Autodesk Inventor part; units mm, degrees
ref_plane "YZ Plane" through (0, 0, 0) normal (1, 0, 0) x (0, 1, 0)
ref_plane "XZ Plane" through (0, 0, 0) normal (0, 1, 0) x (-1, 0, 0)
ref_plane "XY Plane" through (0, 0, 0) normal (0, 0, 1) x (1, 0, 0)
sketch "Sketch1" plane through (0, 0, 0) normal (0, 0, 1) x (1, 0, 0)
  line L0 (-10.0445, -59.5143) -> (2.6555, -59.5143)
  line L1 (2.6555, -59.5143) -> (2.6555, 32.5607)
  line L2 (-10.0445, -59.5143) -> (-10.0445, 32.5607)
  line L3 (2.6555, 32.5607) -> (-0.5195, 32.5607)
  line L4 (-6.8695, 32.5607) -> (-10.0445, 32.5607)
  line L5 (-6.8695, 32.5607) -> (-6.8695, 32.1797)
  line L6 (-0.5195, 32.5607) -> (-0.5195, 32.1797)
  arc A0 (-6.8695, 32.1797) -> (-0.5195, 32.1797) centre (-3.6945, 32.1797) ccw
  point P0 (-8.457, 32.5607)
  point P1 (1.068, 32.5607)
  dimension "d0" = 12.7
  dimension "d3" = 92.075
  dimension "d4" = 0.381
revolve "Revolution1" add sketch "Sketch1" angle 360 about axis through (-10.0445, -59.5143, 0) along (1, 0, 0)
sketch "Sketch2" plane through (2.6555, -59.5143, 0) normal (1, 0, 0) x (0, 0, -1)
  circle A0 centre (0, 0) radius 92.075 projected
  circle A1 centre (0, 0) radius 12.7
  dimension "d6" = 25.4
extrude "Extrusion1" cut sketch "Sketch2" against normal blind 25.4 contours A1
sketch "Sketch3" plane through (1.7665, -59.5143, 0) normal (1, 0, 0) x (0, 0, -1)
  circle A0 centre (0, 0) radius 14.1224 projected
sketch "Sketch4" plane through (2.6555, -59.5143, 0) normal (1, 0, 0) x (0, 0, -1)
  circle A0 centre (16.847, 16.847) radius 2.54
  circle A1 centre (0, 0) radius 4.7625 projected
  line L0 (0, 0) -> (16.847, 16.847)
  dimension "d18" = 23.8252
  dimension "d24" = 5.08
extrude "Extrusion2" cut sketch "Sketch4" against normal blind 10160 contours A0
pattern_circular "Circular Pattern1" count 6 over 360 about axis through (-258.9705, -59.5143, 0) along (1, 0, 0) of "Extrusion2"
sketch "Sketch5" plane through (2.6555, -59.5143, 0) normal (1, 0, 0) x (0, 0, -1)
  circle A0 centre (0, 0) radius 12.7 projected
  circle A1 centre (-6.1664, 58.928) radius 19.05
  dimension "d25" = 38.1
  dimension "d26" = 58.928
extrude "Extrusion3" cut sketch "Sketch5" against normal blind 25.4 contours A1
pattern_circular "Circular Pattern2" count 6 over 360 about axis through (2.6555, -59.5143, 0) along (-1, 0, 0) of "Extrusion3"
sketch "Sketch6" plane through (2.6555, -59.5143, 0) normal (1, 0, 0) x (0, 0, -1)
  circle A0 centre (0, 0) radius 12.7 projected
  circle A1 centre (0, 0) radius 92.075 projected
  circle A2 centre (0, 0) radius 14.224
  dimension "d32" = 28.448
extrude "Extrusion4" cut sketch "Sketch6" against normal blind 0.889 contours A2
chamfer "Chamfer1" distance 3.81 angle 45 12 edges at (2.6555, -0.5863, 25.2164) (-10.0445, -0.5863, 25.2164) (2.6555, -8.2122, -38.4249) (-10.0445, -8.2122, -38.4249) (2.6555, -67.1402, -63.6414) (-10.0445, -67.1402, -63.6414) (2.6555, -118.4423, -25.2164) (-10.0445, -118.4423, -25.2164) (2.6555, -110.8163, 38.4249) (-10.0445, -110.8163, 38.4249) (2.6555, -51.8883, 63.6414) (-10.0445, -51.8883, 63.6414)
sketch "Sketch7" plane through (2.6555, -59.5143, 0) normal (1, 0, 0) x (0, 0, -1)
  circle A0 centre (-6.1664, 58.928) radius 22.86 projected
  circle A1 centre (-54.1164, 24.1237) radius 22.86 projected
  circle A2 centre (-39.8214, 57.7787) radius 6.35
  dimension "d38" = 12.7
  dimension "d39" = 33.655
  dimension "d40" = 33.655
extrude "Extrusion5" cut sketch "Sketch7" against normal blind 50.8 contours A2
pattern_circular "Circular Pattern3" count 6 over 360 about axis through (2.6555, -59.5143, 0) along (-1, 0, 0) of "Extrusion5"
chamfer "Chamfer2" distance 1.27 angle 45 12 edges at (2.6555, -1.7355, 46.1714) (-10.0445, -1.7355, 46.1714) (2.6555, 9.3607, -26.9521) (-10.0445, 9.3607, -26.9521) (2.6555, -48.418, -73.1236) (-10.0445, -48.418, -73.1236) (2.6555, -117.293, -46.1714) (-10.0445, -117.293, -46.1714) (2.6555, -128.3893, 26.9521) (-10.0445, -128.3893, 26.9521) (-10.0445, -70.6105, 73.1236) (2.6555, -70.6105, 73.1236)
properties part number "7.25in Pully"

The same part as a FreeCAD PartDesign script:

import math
import FreeCAD as App
import Part
import Sketcher
from FreeCAD import Vector
Q = App.Units.Quantity


def edges_at(feature, points):
    """Names of the edges that pass closest to the given points."""
    edges = feature.Shape.Edges
    near = lambda p: min(range(len(edges)), key=lambda i: edges[i].distToShape(Part.Vertex(*p))[0])
    return sorted({f"Edge{near(p) + 1}" for p in points})

doc = App.newDocument("Part")
params = doc.addObject("Spreadsheet::Sheet", "Params")
for row, (alias, value) in enumerate([
    ("sketch1_width", "0.5 in"),
    ("sketch1_height", "3.625 in"),
    ("sketch1_height2", "0.015 in"),
    ("sketch1_radius", "0.125 in"),
    ("revolution_angle", "360 deg"),
    ("sketch2_diameter", "1 in"),
    ("pocket1_length", "1 in"),
    ("sketch3_diameter", "0.2 in"),
    ("pocket2_length", "400 in"),
    ("sketch4_diameter", "1.5 in"),
    ("pocket3_length", "1 in"),
    ("sketch5_diameter", "1.12 in"),
    ("sketch5_diameter2", "1 in"),
    ("pocket4_length", "0.035 in"),
    ("chamfer_size", "0.15 in"),
    ("sketch6_diameter", "0.5 in"),
    ("pocket5_length", "2 in"),
    ("chamfer2_size", "0.05 in"),
], start=1):
    params.set(f"A{row}", alias)
    params.set(f"B{row}", "=" + value)
    params.setAlias(f"B{row}", alias)

body = doc.addObject("PartDesign::Body", "Body")

# Sketch on XY plane
sketch1 = body.newObject("Sketcher::SketchObject", "Sketch")
sketch1.AttachmentSupport = (doc.getObject("XY_Plane"), [""])
sketch1.MapMode = "FlatFace"
sketch1.addGeometry([
    Part.LineSegment(Vector(-10.0445, 32.5607, 0), Vector(-10.0445, -59.5143, 0)),  # 0
    Part.LineSegment(Vector(-10.0445, -59.5143, 0), Vector(2.6555, -59.5143, 0)),  # 1
    Part.LineSegment(Vector(2.6555, -59.5143, 0), Vector(2.6555, 32.5607, 0)),  # 2
    Part.LineSegment(Vector(2.6555, 32.5607, 0), Vector(-0.5195, 32.5607, 0)),  # 3
    Part.LineSegment(Vector(-0.5195, 32.5607, 0), Vector(-0.5195, 32.1797, 0)),  # 4
    Part.ArcOfCircle(Part.Circle(Vector(-3.6945, 32.1797, 0), Vector(0, 0, 1), 3.175), math.radians(180), math.radians(360)),  # 5
    Part.LineSegment(Vector(-6.8695, 32.1797, 0), Vector(-6.8695, 32.5607, 0)),  # 6
    Part.LineSegment(Vector(-6.8695, 32.5607, 0), Vector(-10.0445, 32.5607, 0)),  # 7
], False)
sketch1.addGeometry(Part.LineSegment(Vector(-10.0445, -59.5143, 0), Vector(2.6555, -59.5143, 0)), True)  # axis
sketch1.addConstraint([
    Sketcher.Constraint("Coincident", 0, 2, 1, 1),
    Sketcher.Constraint("Coincident", 1, 2, 2, 1),
    Sketcher.Constraint("Coincident", 2, 2, 3, 1),
    Sketcher.Constraint("Coincident", 3, 2, 4, 1),
    Sketcher.Constraint("Tangent", 4, 2, 5, 2),
    Sketcher.Constraint("Tangent", 5, 1, 6, 1),
    Sketcher.Constraint("Coincident", 6, 2, 7, 1),
    Sketcher.Constraint("Coincident", 7, 2, 0, 1),
    Sketcher.Constraint("Vertical", 0),
    Sketcher.Constraint("Horizontal", 1),
    Sketcher.Constraint("Vertical", 2),
    Sketcher.Constraint("Horizontal", 3),
    Sketcher.Constraint("Vertical", 4),
    Sketcher.Constraint("Vertical", 6),
    Sketcher.Constraint("Horizontal", 7),
    Sketcher.Constraint("Horizontal", 8),
    Sketcher.Constraint("Coincident", 8, 1, 0, 2),
    Sketcher.Constraint("Horizontal", 3, 2, 6, 2),
    Sketcher.Constraint("Vertical", 2, 2, 8, 2),
    Sketcher.Constraint("Equal", 3, 7),
    Sketcher.Constraint("DistanceX", 1, 1, 1, 2, Q("0.5 in")),
    Sketcher.Constraint("DistanceY", 0, 2, 0, 1, Q("3.625 in")),
    Sketcher.Constraint("DistanceY", 4, 2, 4, 1, Q("0.015 in")),
    Sketcher.Constraint("Radius", 5, Q("0.125 in")),
    Sketcher.Constraint("DistanceX", 5, 3, -1, 1, Q("3.6945 mm")),
    Sketcher.Constraint("DistanceY", -1, 1, 5, 3, Q("32.1797 mm")),
])
sketch1.setExpression("Constraints[20]", "Params.sketch1_width")
sketch1.setExpression("Constraints[21]", "Params.sketch1_height")
sketch1.setExpression("Constraints[22]", "Params.sketch1_height2")
sketch1.setExpression("Constraints[23]", "Params.sketch1_radius")
revolution = body.newObject("PartDesign::Revolution", "Revolution")
revolution.Profile = sketch1
revolution.ReferenceAxis = (sketch1, ["Axis0"])
revolution.setExpression("Angle", "Params.revolution_angle")

# Sketch on YZ plane
sketch2 = body.newObject("Sketcher::SketchObject", "Sketch001")
sketch2.AttachmentSupport = (doc.getObject("YZ_Plane"), [""])
sketch2.MapMode = "FlatFace"
sketch2.AttachmentOffset = App.Placement(Vector(0, 0, 2.6555), App.Rotation())
sketch2.addGeometry(Part.Circle(Vector(-59.5143, 0, 0), Vector(0, 0, 1), 12.7), False)
sketch2.addConstraint([
    Sketcher.Constraint("PointOnObject", 0, 3, -1),
    Sketcher.Constraint("Diameter", 0, Q("1 in")),
    Sketcher.Constraint("DistanceX", 0, 3, -1, 1, Q("59.5143 mm")),
])
sketch2.setExpression("Constraints[1]", "Params.sketch2_diameter")
pocket1 = body.newObject("PartDesign::Pocket", "Pocket")
pocket1.Profile = sketch2
pocket1.setExpression("Length", "Params.pocket1_length")

# Sketch on YZ plane
sketch3 = body.newObject("Sketcher::SketchObject", "Sketch002")
sketch3.AttachmentSupport = (doc.getObject("YZ_Plane"), [""])
sketch3.MapMode = "FlatFace"
sketch3.AttachmentOffset = App.Placement(Vector(0, 0, 2.6555), App.Rotation())
sketch3.addGeometry(Part.Circle(Vector(-42.6673, -16.847, 0), Vector(0, 0, 1), 2.54), False)
sketch3.addConstraint([
    Sketcher.Constraint("Diameter", 0, Q("0.2 in")),
    Sketcher.Constraint("DistanceX", 0, 3, -1, 1, Q("42.6673 mm")),
    Sketcher.Constraint("DistanceY", 0, 3, -1, 1, Q("16.847 mm")),
])
sketch3.setExpression("Constraints[0]", "Params.sketch3_diameter")
pocket2 = body.newObject("PartDesign::Pocket", "Pocket001")
pocket2.Profile = sketch3
pocket2.setExpression("Length", "Params.pocket2_length")
doc.recompute()

datumline = body.newObject("PartDesign::Line", "DatumLine")
datumline.Placement = App.Placement(Vector(0, -59.5143, 0), App.Rotation(Vector(0, 0, 1), Vector(1, 0, 0)))
polarpattern = body.newObject("PartDesign::PolarPattern", "PolarPattern")
polarpattern.Originals = [pocket2]
polarpattern.Axis = (datumline, [""])
polarpattern.Angle = 360
polarpattern.Occurrences = 6
body.Tip = polarpattern

# Sketch on YZ plane
sketch4 = body.newObject("Sketcher::SketchObject", "Sketch003")
sketch4.AttachmentSupport = (doc.getObject("YZ_Plane"), [""])
sketch4.MapMode = "FlatFace"
sketch4.AttachmentOffset = App.Placement(Vector(0, 0, 2.6555), App.Rotation())
sketch4.addGeometry(Part.Circle(Vector(-0.5863, 6.1664, 0), Vector(0, 0, 1), 19.05), False)
sketch4.addConstraint([
    Sketcher.Constraint("Diameter", 0, Q("1.5 in")),
    Sketcher.Constraint("DistanceX", 0, 3, -1, 1, Q("0.5863 mm")),
    Sketcher.Constraint("DistanceY", -1, 1, 0, 3, Q("6.1664 mm")),
])
sketch4.setExpression("Constraints[0]", "Params.sketch4_diameter")
pocket3 = body.newObject("PartDesign::Pocket", "Pocket002")
pocket3.Profile = sketch4
pocket3.setExpression("Length", "Params.pocket3_length")
doc.recompute()

datumline2 = body.newObject("PartDesign::Line", "DatumLine001")
datumline2.Placement = App.Placement(Vector(0, -59.5143, 0), App.Rotation(Vector(0, 0, 1), Vector(1, 0, 0)))
polarpattern2 = body.newObject("PartDesign::PolarPattern", "PolarPattern001")
polarpattern2.Originals = [pocket3]
polarpattern2.Axis = (datumline2, [""])
polarpattern2.Angle = 360
polarpattern2.Occurrences = 6
body.Tip = polarpattern2

# Sketch on YZ plane
sketch5 = body.newObject("Sketcher::SketchObject", "Sketch004")
sketch5.AttachmentSupport = (doc.getObject("YZ_Plane"), [""])
sketch5.MapMode = "FlatFace"
sketch5.AttachmentOffset = App.Placement(Vector(0, 0, 2.6555), App.Rotation())
sketch5.addGeometry([
    Part.Circle(Vector(-59.5143, 0, 0), Vector(0, 0, 1), 14.224),
    Part.Circle(Vector(-59.5143, 0, 0), Vector(0, 0, 1), 12.7),
], False)
sketch5.addConstraint([
    Sketcher.Constraint("Coincident", 1, 3, 0, 3),
    Sketcher.Constraint("PointOnObject", 0, 3, -1),
    Sketcher.Constraint("Diameter", 0, Q("1.12 in")),
    Sketcher.Constraint("Diameter", 1, Q("1 in")),
    Sketcher.Constraint("DistanceX", 0, 3, -1, 1, Q("59.5143 mm")),
])
sketch5.setExpression("Constraints[2]", "Params.sketch5_diameter")
sketch5.setExpression("Constraints[3]", "Params.sketch5_diameter2")
pocket4 = body.newObject("PartDesign::Pocket", "Pocket003")
pocket4.Profile = sketch5
pocket4.setExpression("Length", "Params.pocket4_length")
doc.recompute()

chamfer = body.newObject("PartDesign::Chamfer", "Chamfer")
chamfer.Base = (pocket4, edges_at(pocket4, [
    (2.655, -0.586, 25.216),
    (-10.044, -0.586, 25.216),
    (2.655, -8.212, -38.425),
    (-10.044, -8.212, -38.425),
    (2.655, -67.14, -63.641),
    (-10.044, -67.14, -63.641),
    (2.655, -118.442, -25.216),
    (-10.044, -118.442, -25.216),
    (2.655, -110.816, 38.425),
    (-10.044, -110.816, 38.425),
    (2.655, -51.888, 63.641),
    (-10.044, -51.888, 63.641),
]))
chamfer.setExpression("Size", "Params.chamfer_size")

# Sketch on YZ plane
sketch6 = body.newObject("Sketcher::SketchObject", "Sketch005")
sketch6.AttachmentSupport = (doc.getObject("YZ_Plane"), [""])
sketch6.MapMode = "FlatFace"
sketch6.AttachmentOffset = App.Placement(Vector(0, 0, 2.6555), App.Rotation())
sketch6.addGeometry(Part.Circle(Vector(-1.7356, 39.8214, 0), Vector(0, 0, 1), 6.35), False)
sketch6.addConstraint([
    Sketcher.Constraint("Diameter", 0, Q("0.5 in")),
    Sketcher.Constraint("DistanceX", 0, 3, -1, 1, Q("1.7356 mm")),
    Sketcher.Constraint("DistanceY", -1, 1, 0, 3, Q("39.8214 mm")),
])
sketch6.setExpression("Constraints[0]", "Params.sketch6_diameter")
pocket5 = body.newObject("PartDesign::Pocket", "Pocket004")
pocket5.Profile = sketch6
pocket5.setExpression("Length", "Params.pocket5_length")
doc.recompute()

datumline3 = body.newObject("PartDesign::Line", "DatumLine002")
datumline3.Placement = App.Placement(Vector(0, -59.5143, 0), App.Rotation(Vector(0, 0, 1), Vector(1, 0, 0)))
polarpattern3 = body.newObject("PartDesign::PolarPattern", "PolarPattern002")
polarpattern3.Originals = [pocket5]
polarpattern3.Axis = (datumline3, [""])
polarpattern3.Angle = 360
polarpattern3.Occurrences = 6
body.Tip = polarpattern3
doc.recompute()

chamfer2 = body.newObject("PartDesign::Chamfer", "Chamfer001")
chamfer2.Base = (polarpattern3, edges_at(polarpattern3, [
    (2.655, -1.736, 46.171),
    (-10.044, -1.736, 46.171),
    (2.655, 9.361, -26.952),
    (-10.044, 9.361, -26.952),
    (2.655, -48.418, -73.124),
    (-10.044, -48.418, -73.124),
    (2.655, -117.293, -46.171),
    (-10.044, -117.293, -46.171),
    (2.655, -128.389, 26.952),
    (-10.044, -128.389, 26.952),
    (-10.044, -70.611, 73.124),
    (2.655, -70.611, 73.124),
]))
chamfer2.setExpression("Size", "Params.chamfer2_size")

doc.recompute()
